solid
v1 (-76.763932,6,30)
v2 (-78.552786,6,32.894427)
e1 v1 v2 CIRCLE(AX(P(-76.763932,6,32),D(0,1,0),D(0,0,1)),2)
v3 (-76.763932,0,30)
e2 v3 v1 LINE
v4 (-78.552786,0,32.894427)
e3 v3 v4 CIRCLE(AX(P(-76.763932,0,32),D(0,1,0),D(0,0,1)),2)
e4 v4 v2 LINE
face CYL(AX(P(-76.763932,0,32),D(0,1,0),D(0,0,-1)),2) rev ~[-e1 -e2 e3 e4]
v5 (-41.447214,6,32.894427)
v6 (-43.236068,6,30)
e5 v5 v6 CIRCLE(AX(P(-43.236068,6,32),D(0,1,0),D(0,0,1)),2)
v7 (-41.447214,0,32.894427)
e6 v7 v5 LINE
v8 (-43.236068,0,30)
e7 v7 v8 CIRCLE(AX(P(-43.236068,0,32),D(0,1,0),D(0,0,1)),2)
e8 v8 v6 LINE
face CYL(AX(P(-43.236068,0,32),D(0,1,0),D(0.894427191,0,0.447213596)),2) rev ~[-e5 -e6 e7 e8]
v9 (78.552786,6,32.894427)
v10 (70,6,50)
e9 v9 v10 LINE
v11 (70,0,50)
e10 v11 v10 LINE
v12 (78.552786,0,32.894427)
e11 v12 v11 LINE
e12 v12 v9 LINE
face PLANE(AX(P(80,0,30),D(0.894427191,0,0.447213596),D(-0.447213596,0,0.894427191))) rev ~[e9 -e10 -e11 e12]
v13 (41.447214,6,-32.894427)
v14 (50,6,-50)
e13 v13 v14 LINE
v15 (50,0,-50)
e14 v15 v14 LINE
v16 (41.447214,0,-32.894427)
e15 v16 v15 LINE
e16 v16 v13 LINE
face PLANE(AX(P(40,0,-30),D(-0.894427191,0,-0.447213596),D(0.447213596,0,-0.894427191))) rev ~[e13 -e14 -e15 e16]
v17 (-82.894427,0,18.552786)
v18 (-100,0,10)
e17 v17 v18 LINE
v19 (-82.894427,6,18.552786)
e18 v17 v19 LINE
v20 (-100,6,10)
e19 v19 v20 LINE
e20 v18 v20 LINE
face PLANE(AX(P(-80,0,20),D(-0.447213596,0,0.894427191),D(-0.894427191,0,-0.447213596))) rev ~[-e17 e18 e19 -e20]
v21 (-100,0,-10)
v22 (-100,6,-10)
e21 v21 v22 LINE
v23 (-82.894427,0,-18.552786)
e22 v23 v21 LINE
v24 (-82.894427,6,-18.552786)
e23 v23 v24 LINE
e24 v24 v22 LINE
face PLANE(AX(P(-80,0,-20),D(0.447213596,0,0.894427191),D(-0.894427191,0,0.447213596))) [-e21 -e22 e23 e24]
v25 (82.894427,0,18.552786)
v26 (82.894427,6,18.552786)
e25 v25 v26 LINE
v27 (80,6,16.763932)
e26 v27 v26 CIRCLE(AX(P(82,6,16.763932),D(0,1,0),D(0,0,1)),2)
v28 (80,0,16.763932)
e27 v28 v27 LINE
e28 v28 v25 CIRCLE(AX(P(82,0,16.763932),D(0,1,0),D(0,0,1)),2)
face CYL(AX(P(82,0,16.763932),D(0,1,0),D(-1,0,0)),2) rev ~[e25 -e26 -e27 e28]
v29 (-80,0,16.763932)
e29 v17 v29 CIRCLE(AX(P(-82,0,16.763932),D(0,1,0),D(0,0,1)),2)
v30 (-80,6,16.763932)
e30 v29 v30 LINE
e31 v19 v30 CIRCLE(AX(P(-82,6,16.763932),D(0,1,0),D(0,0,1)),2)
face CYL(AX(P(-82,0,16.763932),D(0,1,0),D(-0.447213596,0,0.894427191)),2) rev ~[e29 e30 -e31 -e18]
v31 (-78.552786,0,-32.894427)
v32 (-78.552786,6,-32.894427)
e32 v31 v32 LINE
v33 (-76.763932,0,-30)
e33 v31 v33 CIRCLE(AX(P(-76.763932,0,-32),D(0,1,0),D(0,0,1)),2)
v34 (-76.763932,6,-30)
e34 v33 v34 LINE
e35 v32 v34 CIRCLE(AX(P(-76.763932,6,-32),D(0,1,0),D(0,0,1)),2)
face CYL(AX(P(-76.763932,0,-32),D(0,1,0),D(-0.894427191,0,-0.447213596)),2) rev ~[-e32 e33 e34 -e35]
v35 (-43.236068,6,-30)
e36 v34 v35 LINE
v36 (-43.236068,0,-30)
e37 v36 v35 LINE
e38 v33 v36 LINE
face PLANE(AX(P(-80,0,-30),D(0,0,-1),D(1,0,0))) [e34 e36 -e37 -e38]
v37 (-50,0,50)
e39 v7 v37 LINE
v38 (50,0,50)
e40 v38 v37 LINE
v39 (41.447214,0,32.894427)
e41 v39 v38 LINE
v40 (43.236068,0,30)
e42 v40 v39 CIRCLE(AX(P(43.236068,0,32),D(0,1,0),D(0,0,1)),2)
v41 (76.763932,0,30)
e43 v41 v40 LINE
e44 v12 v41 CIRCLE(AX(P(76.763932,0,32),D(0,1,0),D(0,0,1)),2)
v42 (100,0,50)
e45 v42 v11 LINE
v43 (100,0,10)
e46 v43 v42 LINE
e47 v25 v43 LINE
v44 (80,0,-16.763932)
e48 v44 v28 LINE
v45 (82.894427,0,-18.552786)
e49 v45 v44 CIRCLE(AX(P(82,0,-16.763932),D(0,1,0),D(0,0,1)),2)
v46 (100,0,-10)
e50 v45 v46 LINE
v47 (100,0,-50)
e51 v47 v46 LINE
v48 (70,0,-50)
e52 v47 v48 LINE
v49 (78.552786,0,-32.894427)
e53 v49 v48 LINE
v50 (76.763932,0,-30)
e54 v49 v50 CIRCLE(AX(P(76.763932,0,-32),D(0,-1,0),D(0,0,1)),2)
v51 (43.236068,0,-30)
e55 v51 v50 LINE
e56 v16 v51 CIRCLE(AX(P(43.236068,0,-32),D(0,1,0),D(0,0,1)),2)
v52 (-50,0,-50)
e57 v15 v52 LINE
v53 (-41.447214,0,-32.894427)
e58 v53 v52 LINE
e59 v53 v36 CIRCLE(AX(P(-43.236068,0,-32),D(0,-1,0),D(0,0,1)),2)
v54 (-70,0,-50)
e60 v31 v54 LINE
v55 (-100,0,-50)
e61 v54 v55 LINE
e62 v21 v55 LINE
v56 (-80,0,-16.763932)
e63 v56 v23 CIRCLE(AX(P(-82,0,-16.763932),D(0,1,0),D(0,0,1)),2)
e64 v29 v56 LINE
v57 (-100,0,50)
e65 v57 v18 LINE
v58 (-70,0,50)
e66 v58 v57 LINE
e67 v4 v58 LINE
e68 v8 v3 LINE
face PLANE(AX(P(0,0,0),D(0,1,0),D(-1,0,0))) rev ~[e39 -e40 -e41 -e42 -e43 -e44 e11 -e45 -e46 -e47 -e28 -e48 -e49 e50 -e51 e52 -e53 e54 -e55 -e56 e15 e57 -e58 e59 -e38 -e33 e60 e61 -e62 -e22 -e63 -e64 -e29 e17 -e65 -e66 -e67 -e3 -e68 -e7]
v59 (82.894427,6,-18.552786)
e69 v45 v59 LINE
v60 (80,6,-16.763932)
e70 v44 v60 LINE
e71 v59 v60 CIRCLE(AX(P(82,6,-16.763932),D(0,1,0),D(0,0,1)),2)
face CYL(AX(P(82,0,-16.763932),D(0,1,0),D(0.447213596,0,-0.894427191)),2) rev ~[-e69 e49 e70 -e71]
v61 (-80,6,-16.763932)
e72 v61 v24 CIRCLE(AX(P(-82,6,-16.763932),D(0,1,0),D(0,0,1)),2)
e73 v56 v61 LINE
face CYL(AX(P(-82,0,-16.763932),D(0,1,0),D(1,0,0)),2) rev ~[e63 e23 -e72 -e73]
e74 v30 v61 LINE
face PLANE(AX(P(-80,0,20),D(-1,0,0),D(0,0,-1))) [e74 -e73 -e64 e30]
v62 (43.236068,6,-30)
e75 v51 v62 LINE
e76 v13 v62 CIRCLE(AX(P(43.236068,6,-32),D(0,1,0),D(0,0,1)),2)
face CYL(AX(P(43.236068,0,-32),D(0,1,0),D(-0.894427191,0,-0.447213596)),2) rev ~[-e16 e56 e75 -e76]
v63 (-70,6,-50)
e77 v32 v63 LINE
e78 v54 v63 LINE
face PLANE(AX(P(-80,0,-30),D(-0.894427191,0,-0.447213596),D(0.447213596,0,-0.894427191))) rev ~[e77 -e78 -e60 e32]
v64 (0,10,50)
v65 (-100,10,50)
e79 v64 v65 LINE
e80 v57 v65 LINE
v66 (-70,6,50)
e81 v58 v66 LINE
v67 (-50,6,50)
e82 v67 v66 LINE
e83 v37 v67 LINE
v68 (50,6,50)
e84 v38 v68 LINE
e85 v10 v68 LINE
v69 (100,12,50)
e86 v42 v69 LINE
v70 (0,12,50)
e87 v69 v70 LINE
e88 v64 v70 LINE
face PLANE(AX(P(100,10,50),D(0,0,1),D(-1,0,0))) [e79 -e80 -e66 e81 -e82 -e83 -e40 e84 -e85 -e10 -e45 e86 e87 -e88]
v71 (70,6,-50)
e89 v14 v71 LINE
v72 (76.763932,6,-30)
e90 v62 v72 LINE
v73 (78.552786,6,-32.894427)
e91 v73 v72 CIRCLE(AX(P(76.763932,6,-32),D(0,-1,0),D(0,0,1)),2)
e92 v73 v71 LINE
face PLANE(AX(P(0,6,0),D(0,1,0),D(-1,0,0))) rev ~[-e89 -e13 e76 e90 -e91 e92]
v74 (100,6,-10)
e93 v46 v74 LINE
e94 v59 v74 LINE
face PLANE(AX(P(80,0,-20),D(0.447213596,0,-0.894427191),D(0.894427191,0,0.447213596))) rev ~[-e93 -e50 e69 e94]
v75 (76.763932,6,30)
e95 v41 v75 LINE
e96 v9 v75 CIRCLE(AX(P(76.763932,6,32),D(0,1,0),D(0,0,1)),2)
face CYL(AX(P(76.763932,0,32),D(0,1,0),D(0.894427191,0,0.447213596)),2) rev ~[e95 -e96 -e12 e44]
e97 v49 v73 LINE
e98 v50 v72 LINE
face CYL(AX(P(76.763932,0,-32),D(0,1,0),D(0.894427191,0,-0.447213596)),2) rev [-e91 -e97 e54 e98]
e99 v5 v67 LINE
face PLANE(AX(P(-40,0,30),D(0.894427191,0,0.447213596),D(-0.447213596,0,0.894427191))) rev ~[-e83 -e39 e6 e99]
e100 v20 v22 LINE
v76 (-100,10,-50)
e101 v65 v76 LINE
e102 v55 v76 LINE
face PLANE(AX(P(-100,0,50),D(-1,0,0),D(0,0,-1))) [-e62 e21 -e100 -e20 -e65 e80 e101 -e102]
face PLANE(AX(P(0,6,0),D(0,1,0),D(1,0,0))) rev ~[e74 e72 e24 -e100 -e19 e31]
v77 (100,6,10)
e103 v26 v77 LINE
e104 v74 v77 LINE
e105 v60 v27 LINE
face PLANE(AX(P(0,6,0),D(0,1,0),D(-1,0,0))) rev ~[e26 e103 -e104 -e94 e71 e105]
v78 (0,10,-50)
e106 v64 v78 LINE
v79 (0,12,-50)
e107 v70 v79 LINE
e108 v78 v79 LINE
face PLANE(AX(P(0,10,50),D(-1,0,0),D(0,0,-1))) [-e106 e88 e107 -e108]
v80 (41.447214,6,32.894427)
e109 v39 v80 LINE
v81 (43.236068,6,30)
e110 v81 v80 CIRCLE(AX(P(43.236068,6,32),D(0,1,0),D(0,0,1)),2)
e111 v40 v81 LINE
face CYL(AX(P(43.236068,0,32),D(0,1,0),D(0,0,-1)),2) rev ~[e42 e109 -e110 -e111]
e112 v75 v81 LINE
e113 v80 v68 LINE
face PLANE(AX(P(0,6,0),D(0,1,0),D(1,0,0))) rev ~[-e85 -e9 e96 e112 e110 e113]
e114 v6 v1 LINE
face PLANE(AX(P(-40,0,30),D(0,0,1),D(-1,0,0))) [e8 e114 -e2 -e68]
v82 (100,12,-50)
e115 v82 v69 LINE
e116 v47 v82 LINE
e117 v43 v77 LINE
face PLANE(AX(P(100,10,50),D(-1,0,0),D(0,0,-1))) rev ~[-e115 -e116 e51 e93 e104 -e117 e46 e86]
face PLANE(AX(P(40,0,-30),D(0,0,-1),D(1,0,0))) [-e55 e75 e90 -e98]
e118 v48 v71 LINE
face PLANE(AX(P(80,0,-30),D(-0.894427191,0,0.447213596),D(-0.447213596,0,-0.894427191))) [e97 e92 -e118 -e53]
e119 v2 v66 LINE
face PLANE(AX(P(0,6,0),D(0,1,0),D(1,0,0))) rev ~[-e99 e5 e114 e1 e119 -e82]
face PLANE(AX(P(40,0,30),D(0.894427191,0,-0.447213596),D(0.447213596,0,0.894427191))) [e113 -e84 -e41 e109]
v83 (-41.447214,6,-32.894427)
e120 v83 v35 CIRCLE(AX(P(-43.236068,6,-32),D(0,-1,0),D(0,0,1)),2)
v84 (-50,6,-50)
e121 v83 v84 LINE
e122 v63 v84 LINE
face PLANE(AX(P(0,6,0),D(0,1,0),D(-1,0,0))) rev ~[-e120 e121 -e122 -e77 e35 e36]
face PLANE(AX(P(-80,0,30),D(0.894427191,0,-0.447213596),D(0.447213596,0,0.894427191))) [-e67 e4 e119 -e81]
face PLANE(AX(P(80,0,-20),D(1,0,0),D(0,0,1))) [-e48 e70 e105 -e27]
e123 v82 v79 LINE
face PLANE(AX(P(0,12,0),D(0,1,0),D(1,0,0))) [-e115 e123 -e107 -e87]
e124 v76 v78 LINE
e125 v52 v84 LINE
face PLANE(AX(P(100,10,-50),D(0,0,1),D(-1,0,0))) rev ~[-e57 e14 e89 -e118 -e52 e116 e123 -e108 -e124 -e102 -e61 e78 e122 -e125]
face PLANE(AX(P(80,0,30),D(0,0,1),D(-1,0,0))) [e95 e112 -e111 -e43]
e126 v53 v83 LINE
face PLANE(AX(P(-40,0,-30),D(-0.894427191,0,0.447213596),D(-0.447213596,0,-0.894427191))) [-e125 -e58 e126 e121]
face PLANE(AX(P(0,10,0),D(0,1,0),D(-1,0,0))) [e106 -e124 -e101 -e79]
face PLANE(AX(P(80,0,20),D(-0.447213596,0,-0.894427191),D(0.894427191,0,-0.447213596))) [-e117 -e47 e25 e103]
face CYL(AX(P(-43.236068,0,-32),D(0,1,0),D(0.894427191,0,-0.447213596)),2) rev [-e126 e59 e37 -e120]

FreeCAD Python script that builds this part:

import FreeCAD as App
import Part
import Sketcher
from FreeCAD import Vector
Q = App.Units.Quantity


def edges_at(feature, points):
    """Names of the edges that pass closest to the given points."""
    edges = feature.Shape.Edges
    near = lambda p: min(range(len(edges)), key=lambda i: edges[i].distToShape(Part.Vertex(*p))[0])
    return sorted({f"Edge{near(p) + 1}" for p in points})


def add_polygon(sketch, points):
    """Adds a closed chain of lines whose ends are joined by coincident constraints."""
    first, n = sketch.GeometryCount, len(points)
    for a, b in zip(points, points[1:] + points[:1]):
        sketch.addGeometry(Part.LineSegment(App.Vector(*a, 0), App.Vector(*b, 0)), False)
    for i in range(n):
        sketch.addConstraint(Sketcher.Constraint("Coincident", first + i, 2, first + (i + 1) % n, 1))

doc = App.newDocument("Part")
body = doc.addObject("PartDesign::Body", "Body")

sketch1 = body.newObject("Sketcher::SketchObject", "Sketch")
sketch1.AttachmentSupport = (doc.getObject("XZ_Plane"), [""])
sketch1.MapMode = "FlatFace"
add_polygon(sketch1, [(-100, -50), (-100, 50), (100, 50), (100, -50)])
sketch1.addConstraint(Sketcher.Constraint("Vertical", 0))
sketch1.addConstraint(Sketcher.Constraint("Horizontal", 1))
sketch1.addConstraint(Sketcher.Constraint("Vertical", 2))
sketch1.addConstraint(Sketcher.Constraint("Horizontal", 3))
sketch1.addConstraint(Sketcher.Constraint("Symmetric", 0, 2, 2, 2, -1, 1))
sketch1.addConstraint(Sketcher.Constraint("DistanceX", 1, 1, 1, 2, Q("200 mm")))
sketch1.addConstraint(Sketcher.Constraint("DistanceY", 0, 1, 0, 2, Q("100 mm")))
pad1 = body.newObject("PartDesign::Pad", "Pad")
pad1.Profile = sketch1
pad1.Length = 10
pad1.Reversed = True

sketch2 = body.newObject("Sketcher::SketchObject", "Sketch001")
sketch2.AttachmentSupport = (doc.getObject("XZ_Plane"), [""])
sketch2.MapMode = "FlatFace"
add_polygon(sketch2, [(-50, -50), (-70, -50), (-80, -30), (-40, -30)])
add_polygon(sketch2, [(70, -50), (50, -50), (40, -30), (80, -30)])
add_polygon(sketch2, [(80, 20), (100, 10), (100, -10), (80, -20)])
sketch2.addConstraint(Sketcher.Constraint("Horizontal", 0))
sketch2.addConstraint(Sketcher.Constraint("Horizontal", 2))
sketch2.addConstraint(Sketcher.Constraint("Horizontal", 4))
sketch2.addConstraint(Sketcher.Constraint("Horizontal", 6))
sketch2.addConstraint(Sketcher.Constraint("Vertical", 9))
sketch2.addConstraint(Sketcher.Constraint("Vertical", 11))
sketch2.addConstraint(Sketcher.Constraint("Symmetric", 3, 2, 4, 2, -2))
sketch2.addConstraint(Sketcher.Constraint("Symmetric", 2, 2, 5, 2, -2))
sketch2.addConstraint(Sketcher.Constraint("Parallel", 1, 5))
sketch2.addConstraint(Sketcher.Constraint("Parallel", 3, 7))
sketch2.addConstraint(Sketcher.Constraint("Perpendicular", 7, 8))
sketch2.addConstraint(Sketcher.Constraint("Perpendicular", 5, 10))
sketch2.addConstraint(Sketcher.Constraint("Vertical", 6, 2, 10, 2))
sketch2.addConstraint(Sketcher.Constraint("Equal", 0, 4))
sketch2.addConstraint(Sketcher.Constraint("Equal", 4, 9))
sketch2.addConstraint(Sketcher.Constraint("Equal", 6, 11))
sketch2.addConstraint(Sketcher.Constraint("DistanceX", 0, 2, 0, 1, Q("20 mm")))
sketch2.addConstraint(Sketcher.Constraint("DistanceX", 2, 1, 2, 2, Q("40 mm")))
sketch2.addConstraint(Sketcher.Constraint("DistanceY", 1, 2, -1, 1, Q("30 mm")))
sketch2.addConstraint(Sketcher.Constraint("DistanceX", 2, 2, -1, 1, Q("40 mm")))
sketch2.addConstraint(Sketcher.Constraint("DistanceX", -1, 1, 8, 2, Q("100 mm")))
sketch2.addConstraint(Sketcher.Constraint("DistanceY", -1, 1, 8, 2, Q("10 mm")))
pocket1 = body.newObject("PartDesign::Pocket", "Pocket")
pocket1.Profile = sketch2
pocket1.Length = 6
doc.recompute()

polarpattern = body.newObject("PartDesign::PolarPattern", "PolarPattern")
polarpattern.Originals = [pocket1]
polarpattern.Axis = (doc.getObject("Y_Axis"), [""])
polarpattern.Angle = 360
polarpattern.Occurrences = 2
body.Tip = polarpattern
doc.recompute()

fillet = body.newObject("PartDesign::Fillet", "Fillet")
fillet.Base = (polarpattern, edges_at(polarpattern, [
    (80, 3, -30),
    (40, 3, -30),
    (-40, 3, -30),
    (-80, 3, -30),
    (-80, 3, -20),
    (-80, 3, 20),
    (-80, 3, 30),
    (-40, 3, 30),
    (40, 3, 30),
    (80, 3, 30),
    (80, 3, 20),
    (80, 3, -20),
]))
fillet.Radius = 2

sketch3 = body.newObject("Sketcher::SketchObject", "Sketch002")
sketch3.AttachmentSupport = (doc.getObject("XZ_Plane"), [""])
sketch3.MapMode = "FlatFace"
sketch3.AttachmentOffset = App.Placement(Vector(0, 0, -10), App.Rotation())
add_polygon(sketch3, [(0, 50), (100, 50), (100, -50), (0, -50)])
sketch3.addConstraint(Sketcher.Constraint("Horizontal", 0))
sketch3.addConstraint(Sketcher.Constraint("Vertical", 1))
sketch3.addConstraint(Sketcher.Constraint("Horizontal", 2))
sketch3.addConstraint(Sketcher.Constraint("Vertical", 3))
sketch3.addConstraint(Sketcher.Constraint("Symmetric", 2, 2, 3, 2, -1, 1))
sketch3.addConstraint(Sketcher.Constraint("Equal", 2, 1))
sketch3.addConstraint(Sketcher.Constraint("DistanceX", 0, 1, 0, 2, Q("100 mm")))
pad2 = body.newObject("PartDesign::Pad", "Pad001")
pad2.Profile = sketch3
pad2.Length = 2
pad2.Reversed = True

doc.recompute()
